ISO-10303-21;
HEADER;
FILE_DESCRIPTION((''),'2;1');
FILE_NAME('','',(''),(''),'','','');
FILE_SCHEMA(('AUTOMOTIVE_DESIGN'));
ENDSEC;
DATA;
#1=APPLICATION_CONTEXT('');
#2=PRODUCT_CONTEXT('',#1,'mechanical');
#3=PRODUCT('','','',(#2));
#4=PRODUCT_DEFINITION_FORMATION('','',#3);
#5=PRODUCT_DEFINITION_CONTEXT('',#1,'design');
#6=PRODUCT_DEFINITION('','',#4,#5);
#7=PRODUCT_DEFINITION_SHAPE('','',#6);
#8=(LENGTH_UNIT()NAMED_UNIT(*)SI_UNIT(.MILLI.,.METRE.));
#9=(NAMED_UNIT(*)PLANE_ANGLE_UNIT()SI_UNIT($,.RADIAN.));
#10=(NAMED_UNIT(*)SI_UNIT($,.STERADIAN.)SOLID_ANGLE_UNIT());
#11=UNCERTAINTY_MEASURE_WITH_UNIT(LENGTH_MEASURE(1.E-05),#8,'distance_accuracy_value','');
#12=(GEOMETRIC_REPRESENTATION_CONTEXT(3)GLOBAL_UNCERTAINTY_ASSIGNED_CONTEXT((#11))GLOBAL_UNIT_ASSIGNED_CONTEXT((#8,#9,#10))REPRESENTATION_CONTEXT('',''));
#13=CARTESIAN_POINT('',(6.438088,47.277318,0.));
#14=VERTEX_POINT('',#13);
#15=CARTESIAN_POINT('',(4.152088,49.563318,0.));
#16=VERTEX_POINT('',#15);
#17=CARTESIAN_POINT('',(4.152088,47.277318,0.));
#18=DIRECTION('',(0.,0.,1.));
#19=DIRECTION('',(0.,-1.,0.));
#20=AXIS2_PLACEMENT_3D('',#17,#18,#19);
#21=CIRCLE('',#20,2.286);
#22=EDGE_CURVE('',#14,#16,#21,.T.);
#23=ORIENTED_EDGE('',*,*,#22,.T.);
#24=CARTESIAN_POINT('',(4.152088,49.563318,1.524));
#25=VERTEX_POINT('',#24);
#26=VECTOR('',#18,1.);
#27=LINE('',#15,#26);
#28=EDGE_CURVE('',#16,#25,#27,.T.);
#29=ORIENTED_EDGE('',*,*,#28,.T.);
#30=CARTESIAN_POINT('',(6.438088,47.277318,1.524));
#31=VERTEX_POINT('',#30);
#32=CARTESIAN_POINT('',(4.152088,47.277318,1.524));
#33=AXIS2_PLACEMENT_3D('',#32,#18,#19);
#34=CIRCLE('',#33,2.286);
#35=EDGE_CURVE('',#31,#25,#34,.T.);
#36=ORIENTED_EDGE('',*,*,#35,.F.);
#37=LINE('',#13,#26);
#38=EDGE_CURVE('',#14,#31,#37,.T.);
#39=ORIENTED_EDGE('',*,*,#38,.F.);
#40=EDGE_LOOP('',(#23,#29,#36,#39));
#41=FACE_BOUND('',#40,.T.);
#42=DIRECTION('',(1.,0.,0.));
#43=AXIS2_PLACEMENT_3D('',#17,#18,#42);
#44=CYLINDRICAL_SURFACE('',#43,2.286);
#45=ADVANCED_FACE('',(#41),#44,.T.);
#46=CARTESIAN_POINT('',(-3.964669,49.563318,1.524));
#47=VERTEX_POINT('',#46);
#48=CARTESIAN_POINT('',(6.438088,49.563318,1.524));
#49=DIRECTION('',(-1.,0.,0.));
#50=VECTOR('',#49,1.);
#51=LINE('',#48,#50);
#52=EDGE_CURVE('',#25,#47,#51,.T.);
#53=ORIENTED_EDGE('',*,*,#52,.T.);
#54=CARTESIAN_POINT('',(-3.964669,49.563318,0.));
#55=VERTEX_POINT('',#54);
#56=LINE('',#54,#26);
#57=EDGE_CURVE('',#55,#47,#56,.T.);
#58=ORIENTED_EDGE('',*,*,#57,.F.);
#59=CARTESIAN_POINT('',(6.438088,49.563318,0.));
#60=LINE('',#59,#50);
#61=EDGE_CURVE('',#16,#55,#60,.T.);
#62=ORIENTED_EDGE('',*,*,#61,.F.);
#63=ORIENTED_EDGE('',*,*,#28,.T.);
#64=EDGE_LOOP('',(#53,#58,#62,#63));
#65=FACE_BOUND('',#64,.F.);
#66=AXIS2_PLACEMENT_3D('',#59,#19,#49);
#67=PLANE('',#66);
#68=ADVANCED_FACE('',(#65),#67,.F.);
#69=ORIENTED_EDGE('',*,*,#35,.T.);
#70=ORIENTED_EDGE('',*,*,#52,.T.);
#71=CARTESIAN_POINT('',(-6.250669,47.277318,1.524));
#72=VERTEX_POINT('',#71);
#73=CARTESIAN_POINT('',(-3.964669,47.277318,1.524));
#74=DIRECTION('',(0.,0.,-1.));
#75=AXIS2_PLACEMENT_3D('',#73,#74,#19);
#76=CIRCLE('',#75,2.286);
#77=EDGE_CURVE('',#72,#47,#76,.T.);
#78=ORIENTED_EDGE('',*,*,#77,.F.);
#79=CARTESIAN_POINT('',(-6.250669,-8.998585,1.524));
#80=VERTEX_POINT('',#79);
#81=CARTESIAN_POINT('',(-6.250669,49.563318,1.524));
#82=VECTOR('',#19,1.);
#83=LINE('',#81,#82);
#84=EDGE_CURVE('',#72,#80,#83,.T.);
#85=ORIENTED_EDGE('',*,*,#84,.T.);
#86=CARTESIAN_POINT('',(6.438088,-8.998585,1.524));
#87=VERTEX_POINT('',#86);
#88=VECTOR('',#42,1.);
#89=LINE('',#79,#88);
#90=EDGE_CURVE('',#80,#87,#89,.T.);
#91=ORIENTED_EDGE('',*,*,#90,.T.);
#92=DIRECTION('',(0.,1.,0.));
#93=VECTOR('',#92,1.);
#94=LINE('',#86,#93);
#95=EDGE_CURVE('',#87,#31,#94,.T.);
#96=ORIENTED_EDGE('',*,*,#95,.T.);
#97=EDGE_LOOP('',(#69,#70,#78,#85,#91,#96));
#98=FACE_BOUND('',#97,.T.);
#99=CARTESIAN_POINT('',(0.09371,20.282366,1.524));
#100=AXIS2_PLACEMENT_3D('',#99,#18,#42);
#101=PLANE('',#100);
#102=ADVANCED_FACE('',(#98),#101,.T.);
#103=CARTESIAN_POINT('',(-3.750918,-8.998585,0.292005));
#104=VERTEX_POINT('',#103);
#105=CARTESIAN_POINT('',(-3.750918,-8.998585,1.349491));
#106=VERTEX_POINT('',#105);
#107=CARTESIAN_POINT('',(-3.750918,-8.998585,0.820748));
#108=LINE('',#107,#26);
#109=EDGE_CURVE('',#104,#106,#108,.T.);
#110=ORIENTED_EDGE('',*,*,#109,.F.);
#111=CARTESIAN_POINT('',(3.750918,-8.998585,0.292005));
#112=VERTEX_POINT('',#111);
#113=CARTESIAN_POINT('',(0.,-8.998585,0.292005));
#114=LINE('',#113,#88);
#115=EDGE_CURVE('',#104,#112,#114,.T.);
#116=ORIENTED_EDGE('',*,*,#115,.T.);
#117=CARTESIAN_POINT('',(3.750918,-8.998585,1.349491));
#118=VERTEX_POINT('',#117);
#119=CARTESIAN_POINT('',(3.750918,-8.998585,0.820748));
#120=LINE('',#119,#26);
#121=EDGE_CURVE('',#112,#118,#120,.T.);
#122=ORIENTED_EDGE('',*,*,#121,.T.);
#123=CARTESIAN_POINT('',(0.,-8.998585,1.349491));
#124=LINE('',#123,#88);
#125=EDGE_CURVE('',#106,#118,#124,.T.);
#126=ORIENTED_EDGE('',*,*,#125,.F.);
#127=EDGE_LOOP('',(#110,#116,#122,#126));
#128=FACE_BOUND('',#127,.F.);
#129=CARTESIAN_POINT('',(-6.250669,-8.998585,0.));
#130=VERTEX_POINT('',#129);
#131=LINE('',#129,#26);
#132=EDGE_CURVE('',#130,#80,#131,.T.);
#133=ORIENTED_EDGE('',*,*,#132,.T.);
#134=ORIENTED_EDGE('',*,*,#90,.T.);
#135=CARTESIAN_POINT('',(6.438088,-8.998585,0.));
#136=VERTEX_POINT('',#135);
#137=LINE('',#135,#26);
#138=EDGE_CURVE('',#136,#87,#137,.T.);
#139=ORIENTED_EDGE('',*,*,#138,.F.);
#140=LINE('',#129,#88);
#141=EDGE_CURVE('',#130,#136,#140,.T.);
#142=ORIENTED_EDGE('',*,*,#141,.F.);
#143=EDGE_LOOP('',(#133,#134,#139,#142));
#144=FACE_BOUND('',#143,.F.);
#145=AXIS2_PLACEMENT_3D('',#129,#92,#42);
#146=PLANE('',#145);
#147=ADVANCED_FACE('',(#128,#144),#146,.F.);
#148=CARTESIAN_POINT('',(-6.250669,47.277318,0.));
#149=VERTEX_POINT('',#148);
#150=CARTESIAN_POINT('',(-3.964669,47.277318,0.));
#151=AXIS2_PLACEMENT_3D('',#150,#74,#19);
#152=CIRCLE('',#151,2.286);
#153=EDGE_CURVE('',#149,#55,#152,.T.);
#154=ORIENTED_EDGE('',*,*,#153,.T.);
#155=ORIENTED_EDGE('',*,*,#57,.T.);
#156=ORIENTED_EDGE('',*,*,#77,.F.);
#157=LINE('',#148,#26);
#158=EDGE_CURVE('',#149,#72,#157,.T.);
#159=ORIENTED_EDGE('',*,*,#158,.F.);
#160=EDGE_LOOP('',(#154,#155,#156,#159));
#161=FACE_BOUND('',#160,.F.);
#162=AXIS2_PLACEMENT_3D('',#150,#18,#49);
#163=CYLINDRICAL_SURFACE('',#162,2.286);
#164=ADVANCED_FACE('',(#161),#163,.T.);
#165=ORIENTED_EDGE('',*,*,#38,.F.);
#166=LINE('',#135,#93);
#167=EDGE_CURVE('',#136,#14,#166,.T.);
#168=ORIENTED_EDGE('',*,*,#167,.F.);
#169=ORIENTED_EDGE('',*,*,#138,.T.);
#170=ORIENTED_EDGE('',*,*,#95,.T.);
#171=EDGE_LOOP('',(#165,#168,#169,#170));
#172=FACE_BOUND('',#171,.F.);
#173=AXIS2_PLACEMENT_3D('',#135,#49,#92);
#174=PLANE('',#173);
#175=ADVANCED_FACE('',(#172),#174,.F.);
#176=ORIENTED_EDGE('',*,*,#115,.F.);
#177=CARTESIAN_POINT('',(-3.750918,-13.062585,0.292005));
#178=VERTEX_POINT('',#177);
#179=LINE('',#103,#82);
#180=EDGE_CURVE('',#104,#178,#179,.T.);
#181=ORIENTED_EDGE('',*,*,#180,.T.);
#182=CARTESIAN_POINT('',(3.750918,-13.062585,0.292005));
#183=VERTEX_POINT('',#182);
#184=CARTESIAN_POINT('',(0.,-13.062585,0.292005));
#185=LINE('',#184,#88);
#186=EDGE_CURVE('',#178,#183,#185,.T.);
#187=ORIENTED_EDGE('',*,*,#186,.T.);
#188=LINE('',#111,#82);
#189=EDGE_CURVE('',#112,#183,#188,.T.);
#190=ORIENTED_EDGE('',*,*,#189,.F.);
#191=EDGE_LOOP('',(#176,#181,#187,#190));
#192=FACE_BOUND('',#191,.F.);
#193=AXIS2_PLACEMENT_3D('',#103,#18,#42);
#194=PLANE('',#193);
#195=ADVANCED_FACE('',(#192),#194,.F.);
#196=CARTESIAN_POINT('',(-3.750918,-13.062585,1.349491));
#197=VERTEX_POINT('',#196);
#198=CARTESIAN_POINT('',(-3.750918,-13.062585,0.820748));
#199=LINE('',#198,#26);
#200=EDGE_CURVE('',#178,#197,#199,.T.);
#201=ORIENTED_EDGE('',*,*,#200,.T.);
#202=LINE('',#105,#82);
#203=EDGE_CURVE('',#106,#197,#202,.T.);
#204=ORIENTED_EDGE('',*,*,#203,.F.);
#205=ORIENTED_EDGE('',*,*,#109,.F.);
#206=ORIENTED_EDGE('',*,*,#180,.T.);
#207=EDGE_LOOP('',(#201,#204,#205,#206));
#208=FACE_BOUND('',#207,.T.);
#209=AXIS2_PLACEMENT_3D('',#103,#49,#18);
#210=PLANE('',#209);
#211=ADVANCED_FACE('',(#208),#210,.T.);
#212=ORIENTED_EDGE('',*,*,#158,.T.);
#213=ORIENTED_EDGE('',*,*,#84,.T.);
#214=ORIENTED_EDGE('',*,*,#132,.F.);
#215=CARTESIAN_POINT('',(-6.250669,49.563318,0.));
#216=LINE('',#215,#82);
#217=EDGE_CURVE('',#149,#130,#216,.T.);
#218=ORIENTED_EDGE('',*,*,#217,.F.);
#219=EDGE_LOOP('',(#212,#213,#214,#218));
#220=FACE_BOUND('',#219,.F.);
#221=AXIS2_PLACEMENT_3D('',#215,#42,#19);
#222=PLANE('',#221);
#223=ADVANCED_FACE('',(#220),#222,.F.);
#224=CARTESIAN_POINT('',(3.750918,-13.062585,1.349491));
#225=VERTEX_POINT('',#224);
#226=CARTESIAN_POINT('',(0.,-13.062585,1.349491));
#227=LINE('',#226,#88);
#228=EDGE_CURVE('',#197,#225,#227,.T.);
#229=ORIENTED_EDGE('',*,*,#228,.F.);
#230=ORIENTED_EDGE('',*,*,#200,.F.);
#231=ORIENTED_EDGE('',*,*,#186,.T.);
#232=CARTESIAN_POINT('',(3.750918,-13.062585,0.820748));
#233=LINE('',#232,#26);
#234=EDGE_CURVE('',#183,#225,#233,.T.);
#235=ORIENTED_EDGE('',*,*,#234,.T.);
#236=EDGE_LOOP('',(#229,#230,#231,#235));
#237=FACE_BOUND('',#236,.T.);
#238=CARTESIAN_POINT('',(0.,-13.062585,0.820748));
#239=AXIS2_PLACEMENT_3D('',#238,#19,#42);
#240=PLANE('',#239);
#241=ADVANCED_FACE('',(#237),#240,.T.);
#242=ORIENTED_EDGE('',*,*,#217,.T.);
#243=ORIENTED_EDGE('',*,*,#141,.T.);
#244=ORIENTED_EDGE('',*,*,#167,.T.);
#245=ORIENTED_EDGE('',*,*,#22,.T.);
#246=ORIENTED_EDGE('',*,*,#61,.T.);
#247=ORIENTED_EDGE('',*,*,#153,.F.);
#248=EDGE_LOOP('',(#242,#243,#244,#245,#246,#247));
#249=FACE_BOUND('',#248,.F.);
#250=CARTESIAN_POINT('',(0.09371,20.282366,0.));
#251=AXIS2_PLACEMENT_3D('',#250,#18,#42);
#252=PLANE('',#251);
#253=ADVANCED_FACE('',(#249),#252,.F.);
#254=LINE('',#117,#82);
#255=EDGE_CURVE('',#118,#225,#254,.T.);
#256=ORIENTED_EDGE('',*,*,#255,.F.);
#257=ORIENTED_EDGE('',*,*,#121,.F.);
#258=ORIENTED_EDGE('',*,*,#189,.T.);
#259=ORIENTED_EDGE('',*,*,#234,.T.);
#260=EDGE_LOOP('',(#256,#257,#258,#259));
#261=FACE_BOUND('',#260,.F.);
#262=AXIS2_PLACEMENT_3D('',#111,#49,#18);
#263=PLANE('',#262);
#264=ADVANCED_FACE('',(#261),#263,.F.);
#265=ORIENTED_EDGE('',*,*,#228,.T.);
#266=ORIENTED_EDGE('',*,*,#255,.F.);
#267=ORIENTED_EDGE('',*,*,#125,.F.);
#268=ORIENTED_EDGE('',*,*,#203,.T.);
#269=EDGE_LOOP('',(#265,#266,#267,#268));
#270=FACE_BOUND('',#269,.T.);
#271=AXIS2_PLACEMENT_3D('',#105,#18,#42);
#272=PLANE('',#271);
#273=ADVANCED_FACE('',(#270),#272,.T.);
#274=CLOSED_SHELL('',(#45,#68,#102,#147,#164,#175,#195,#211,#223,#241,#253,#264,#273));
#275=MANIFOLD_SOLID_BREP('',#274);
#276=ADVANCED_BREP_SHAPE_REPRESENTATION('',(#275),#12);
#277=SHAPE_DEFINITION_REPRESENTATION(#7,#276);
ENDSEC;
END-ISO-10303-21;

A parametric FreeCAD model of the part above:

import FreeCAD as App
import Part
import Sketcher
Q = App.Units.Quantity


def edges_at(feature, points):
    """Names of the edges that pass closest to the given points."""
    edges = feature.Shape.Edges
    near = lambda p: min(range(len(edges)), key=lambda i: edges[i].distToShape(Part.Vertex(*p))[0])
    return sorted({f"Edge{near(p) + 1}" for p in points})

doc = App.newDocument("Part")
body = doc.addObject("PartDesign::Body", "Body")

sketch1 = body.newObject("Sketcher::SketchObject", "Sketch")
sketch1.AttachmentSupport = (doc.getObject("XY_Plane"), [""])
sketch1.MapMode = "FlatFace"
sketch1.addGeometry([
    Part.LineSegment(App.Vector(-6, 50, 0), App.Vector(-6, -9, 0)),
    Part.LineSegment(App.Vector(-6, -9, 0), App.Vector(6, -9, 0)),
    Part.LineSegment(App.Vector(6, -9, 0), App.Vector(6, 50, 0)),
    Part.LineSegment(App.Vector(6, 50, 0), App.Vector(-6, 50, 0)),
], False)
sketch1.addConstraint([
    Sketcher.Constraint("Coincident", 0, 2, 1, 1),
    Sketcher.Constraint("Coincident", 1, 2, 2, 1),
    Sketcher.Constraint("Coincident", 2, 2, 3, 1),
    Sketcher.Constraint("Coincident", 3, 2, 0, 1),
    Sketcher.Constraint("Vertical", 0),
    Sketcher.Constraint("Horizontal", 1),
    Sketcher.Constraint("Vertical", 2),
    Sketcher.Constraint("Horizontal", 3),
    Sketcher.Constraint("DistanceX", 1, 1, 1, 2, 12.688757),
    Sketcher.Constraint("DistanceY", 0, 2, 0, 1, 58.561903),
    Sketcher.Constraint("DistanceX", 0, 2, -1, 1, 6.250669),
    Sketcher.Constraint("DistanceY", -1, 1, 2, 2, 49.563318),
])
pad1 = body.newObject("PartDesign::Pad", "Pad")
pad1.Profile = sketch1
pad1.Length = Q("0.06 in")
doc.recompute()

fillet = body.newObject("PartDesign::Fillet", "Fillet")
fillet.Base = (pad1, edges_at(pad1, [(-6.251, 49.563, 0.762), (6.438, 49.563, 0.762)]))
fillet.Radius = Q("0.09 in")

sketch2 = body.newObject("Sketcher::SketchObject", "Sketch001")
sketch2.AttachmentSupport = (doc.getObject("XZ_Plane"), [""])
sketch2.MapMode = "FlatFace"
sketch2.AttachmentOffset = App.Placement(App.Vector(0, 0, 8.998585), App.Rotation())
sketch2.addGeometry([
    Part.LineSegment(App.Vector(-3.8, 1.3, 0), App.Vector(-3.8, 0.3, 0)),
    Part.LineSegment(App.Vector(-3.8, 0.3, 0), App.Vector(3.8, 0.3, 0)),
    Part.LineSegment(App.Vector(3.8, 0.3, 0), App.Vector(3.8, 1.3, 0)),
    Part.LineSegment(App.Vector(3.8, 1.3, 0), App.Vector(-3.8, 1.3, 0)),
], False)
sketch2.addConstraint([
    Sketcher.Constraint("Coincident", 0, 2, 1, 1),
    Sketcher.Constraint("Coincident", 1, 2, 2, 1),
    Sketcher.Constraint("Coincident", 2, 2, 3, 1),
    Sketcher.Constraint("Coincident", 3, 2, 0, 1),
    Sketcher.Constraint("Vertical", 0),
    Sketcher.Constraint("Horizontal", 1),
    Sketcher.Constraint("Vertical", 2),
    Sketcher.Constraint("Horizontal", 3),
    Sketcher.Constraint("DistanceX", 1, 1, 1, 2, 7.501836),
    Sketcher.Constraint("DistanceY", 0, 2, 0, 1, 1.057486),
    Sketcher.Constraint("DistanceX", 0, 2, -1, 1, 3.750918),
    Sketcher.Constraint("DistanceY", -1, 1, 2, 2, 1.349491),
])
pad2 = body.newObject("PartDesign::Pad", "Pad001")
pad2.Profile = sketch2
pad2.Length = Q("0.16 in")

doc.recompute()
